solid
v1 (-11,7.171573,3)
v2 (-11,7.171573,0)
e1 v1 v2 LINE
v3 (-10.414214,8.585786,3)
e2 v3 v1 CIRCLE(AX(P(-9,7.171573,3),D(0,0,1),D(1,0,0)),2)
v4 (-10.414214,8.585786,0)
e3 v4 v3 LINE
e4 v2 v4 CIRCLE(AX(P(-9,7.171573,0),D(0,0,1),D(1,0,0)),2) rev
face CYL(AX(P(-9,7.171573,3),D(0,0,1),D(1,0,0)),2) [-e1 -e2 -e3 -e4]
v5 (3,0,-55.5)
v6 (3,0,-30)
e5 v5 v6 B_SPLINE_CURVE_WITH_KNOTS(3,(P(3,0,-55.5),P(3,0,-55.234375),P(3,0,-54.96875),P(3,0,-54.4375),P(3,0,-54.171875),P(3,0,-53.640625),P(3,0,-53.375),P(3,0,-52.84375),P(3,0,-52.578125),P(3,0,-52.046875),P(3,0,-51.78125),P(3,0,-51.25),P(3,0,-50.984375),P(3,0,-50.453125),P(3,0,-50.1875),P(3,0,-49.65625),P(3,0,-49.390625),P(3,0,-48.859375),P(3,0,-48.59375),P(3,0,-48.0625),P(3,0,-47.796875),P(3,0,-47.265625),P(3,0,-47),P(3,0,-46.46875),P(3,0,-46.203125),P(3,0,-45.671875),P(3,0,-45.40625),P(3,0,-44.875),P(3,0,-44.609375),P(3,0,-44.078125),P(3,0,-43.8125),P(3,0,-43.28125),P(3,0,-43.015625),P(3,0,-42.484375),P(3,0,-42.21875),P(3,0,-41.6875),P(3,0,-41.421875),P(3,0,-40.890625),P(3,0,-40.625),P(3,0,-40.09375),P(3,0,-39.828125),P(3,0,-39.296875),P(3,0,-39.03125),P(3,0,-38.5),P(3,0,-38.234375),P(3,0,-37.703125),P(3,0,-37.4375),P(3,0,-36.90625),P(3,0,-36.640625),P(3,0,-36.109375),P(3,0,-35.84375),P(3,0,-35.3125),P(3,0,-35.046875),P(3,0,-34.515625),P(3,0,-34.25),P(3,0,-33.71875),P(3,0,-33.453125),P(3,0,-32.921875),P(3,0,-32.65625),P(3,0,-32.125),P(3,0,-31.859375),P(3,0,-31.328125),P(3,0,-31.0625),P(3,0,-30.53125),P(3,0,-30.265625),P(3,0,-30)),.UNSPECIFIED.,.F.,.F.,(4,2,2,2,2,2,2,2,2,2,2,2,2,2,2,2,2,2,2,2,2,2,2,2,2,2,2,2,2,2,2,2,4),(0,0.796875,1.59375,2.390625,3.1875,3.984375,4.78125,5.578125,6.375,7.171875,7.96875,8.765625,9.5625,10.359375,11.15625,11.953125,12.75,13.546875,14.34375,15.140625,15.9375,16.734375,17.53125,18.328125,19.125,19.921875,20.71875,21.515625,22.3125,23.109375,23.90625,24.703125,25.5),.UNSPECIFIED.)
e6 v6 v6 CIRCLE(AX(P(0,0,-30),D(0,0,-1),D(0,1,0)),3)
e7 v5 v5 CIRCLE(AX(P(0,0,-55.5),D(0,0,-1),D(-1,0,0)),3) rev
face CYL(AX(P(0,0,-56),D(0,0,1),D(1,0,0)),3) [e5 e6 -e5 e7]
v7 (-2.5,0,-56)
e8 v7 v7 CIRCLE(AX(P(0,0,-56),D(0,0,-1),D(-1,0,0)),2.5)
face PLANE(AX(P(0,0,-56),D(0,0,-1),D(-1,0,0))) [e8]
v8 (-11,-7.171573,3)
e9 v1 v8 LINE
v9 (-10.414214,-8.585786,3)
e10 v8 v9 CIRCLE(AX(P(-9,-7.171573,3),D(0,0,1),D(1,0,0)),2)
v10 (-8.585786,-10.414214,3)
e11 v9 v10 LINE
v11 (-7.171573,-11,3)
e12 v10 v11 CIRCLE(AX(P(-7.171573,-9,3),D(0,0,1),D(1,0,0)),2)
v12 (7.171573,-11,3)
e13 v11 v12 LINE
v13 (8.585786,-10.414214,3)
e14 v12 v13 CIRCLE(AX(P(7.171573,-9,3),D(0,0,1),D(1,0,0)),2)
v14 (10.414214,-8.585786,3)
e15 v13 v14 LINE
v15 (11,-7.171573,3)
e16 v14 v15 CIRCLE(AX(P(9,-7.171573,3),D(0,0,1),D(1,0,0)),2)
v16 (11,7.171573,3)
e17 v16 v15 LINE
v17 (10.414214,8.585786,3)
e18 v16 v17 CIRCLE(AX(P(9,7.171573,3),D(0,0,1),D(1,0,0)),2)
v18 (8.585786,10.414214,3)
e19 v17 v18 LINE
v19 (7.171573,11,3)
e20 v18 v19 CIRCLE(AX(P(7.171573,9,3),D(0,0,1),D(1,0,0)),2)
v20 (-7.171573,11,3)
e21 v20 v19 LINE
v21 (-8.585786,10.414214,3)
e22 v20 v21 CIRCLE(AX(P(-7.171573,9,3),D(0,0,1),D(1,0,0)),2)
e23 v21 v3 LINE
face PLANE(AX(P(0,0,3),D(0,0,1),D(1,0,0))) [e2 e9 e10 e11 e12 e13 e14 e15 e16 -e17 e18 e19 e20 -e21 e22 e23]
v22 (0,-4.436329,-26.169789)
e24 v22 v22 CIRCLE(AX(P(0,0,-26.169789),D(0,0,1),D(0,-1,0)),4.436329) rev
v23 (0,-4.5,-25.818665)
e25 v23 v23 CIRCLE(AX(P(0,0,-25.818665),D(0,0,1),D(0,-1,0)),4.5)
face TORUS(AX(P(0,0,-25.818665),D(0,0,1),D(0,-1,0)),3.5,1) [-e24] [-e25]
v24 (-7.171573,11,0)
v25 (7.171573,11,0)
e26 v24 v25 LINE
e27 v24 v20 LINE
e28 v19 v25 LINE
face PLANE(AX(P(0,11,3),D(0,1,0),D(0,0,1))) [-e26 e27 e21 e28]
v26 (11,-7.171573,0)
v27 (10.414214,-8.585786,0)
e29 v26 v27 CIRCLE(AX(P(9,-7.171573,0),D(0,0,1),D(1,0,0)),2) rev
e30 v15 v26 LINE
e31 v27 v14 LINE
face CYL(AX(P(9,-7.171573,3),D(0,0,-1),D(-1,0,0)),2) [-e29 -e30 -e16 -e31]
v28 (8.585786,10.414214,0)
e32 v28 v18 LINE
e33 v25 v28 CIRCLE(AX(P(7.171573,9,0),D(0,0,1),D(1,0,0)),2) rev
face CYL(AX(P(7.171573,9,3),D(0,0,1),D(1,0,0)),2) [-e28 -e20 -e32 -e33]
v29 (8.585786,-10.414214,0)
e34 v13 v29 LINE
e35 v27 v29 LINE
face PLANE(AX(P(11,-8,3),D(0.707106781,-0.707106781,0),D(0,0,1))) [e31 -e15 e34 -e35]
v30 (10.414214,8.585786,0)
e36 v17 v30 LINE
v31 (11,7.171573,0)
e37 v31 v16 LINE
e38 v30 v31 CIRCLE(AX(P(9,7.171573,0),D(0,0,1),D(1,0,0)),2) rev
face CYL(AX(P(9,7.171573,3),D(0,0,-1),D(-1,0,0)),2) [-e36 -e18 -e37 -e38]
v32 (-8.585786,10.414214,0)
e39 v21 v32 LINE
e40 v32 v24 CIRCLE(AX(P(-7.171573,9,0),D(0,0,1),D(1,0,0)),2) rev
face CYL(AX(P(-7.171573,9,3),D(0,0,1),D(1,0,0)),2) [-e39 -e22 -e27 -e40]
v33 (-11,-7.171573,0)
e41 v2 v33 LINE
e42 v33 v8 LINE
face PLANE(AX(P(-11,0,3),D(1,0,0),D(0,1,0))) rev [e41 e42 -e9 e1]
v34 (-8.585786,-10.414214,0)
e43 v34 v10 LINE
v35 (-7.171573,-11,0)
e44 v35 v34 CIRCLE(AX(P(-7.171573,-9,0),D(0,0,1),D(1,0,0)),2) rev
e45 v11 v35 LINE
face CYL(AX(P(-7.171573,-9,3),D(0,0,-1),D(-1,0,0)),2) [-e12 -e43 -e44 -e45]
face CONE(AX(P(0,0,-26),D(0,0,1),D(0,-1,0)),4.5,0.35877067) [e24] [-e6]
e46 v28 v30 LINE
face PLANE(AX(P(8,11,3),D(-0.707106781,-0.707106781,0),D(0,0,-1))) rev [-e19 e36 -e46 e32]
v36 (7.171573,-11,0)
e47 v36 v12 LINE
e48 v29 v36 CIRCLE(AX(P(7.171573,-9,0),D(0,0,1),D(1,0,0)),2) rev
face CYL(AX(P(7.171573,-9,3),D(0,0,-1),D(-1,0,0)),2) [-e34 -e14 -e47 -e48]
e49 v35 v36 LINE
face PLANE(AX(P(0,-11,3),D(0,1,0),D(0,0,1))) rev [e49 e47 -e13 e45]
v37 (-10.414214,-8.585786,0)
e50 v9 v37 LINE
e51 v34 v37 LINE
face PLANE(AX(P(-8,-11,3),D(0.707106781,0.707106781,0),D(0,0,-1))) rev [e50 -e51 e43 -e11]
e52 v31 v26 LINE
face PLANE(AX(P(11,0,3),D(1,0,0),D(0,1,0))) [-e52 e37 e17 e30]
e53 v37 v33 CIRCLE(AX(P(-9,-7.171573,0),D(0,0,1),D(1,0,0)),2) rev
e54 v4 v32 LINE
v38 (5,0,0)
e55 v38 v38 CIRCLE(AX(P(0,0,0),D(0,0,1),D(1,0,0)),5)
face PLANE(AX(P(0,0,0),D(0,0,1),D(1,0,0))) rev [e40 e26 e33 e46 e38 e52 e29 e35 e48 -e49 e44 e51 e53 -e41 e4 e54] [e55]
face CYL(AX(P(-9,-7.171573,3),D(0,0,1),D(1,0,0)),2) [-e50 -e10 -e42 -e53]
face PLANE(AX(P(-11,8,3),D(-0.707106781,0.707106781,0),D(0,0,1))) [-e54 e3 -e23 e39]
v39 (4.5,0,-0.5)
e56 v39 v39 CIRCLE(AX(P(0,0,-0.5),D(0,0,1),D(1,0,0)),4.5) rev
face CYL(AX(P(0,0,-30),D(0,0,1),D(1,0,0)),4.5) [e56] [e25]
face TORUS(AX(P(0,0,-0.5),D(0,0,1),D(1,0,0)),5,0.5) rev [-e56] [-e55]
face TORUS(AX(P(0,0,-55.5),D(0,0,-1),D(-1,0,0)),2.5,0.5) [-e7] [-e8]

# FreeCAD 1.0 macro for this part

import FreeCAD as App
import Part
import Sketcher


def edges_at(feature, points):
    """Names of the edges that pass closest to the given points."""
    edges = feature.Shape.Edges
    near = lambda p: min(range(len(edges)), key=lambda i: edges[i].distToShape(Part.Vertex(*p))[0])
    return sorted({f"Edge{near(p) + 1}" for p in points})

doc = App.newDocument("Part")
params = doc.addObject("Spreadsheet::Sheet", "Params")
for row, (alias, value) in enumerate([
    ("sketch1_width", "22 mm"),
    ("pad1_length", "3 mm"),
    ("sketch2_diameter", "9 mm"),
    ("pad2_length", "30 mm"),
    ("sketch3_diameter", "6 mm"),
    ("pad3_length", "26 mm"),
    ("sketch4_height", "4 mm"),
    ("sketch4_width", "1.5 mm"),
    ("groove_angle", "360 deg"),
    ("fillet_radius", "0.5 mm"),
    ("fillet2_radius", "0.5 mm"),
    ("fillet3_radius", "1 mm"),
    ("chamfer_size", "3 mm"),
    ("fillet4_radius", "2 mm"),
], start=1):
    params.set(f"A{row}", alias)
    params.set(f"B{row}", "=" + value)
    params.setAlias(f"B{row}", alias)

body = doc.addObject("PartDesign::Body", "Body")

sketch1 = body.newObject("Sketcher::SketchObject", "Sketch")
sketch1.AttachmentSupport = (doc.getObject("XY_Plane"), [""])
sketch1.MapMode = "FlatFace"
sketch1.addGeometry([
    Part.LineSegment(App.Vector(-11, 11, 0), App.Vector(-11, -11, 0)),
    Part.LineSegment(App.Vector(-11, -11, 0), App.Vector(11, -11, 0)),
    Part.LineSegment(App.Vector(11, -11, 0), App.Vector(11, 11, 0)),
    Part.LineSegment(App.Vector(11, 11, 0), App.Vector(-11, 11, 0)),
], False)
sketch1.addConstraint([
    Sketcher.Constraint("Coincident", 0, 2, 1, 1),
    Sketcher.Constraint("Coincident", 1, 2, 2, 1),
    Sketcher.Constraint("Coincident", 2, 2, 3, 1),
    Sketcher.Constraint("Coincident", 3, 2, 0, 1),
    Sketcher.Constraint("Vertical", 0),
    Sketcher.Constraint("Horizontal", 1),
    Sketcher.Constraint("Vertical", 2),
    Sketcher.Constraint("Horizontal", 3),
    Sketcher.Constraint("Symmetric", 0, 2, 2, 2, -1, 1),
    Sketcher.Constraint("Equal", 3, 0),
    Sketcher.Constraint("DistanceX", 1, 1, 1, 2, 22.0),
])
sketch1.setExpression("Constraints[10]", "Params.sketch1_width")
pad1 = body.newObject("PartDesign::Pad", "Pad")
pad1.Profile = sketch1
pad1.setExpression("Length", "Params.pad1_length")

sketch2 = body.newObject("Sketcher::SketchObject", "Sketch001")
sketch2.AttachmentSupport = (doc.getObject("XY_Plane"), [""])
sketch2.MapMode = "FlatFace"
sketch2.addGeometry(Part.Circle(App.Vector(0, 0, 0), App.Vector(0, 0, 1), 4.5), False)
sketch2.addConstraint([
    Sketcher.Constraint("Coincident", 0, 3, -1, 1),
    Sketcher.Constraint("Diameter", 0, 9.0),
])
sketch2.setExpression("Constraints[1]", "Params.sketch2_diameter")
pad2 = body.newObject("PartDesign::Pad", "Pad001")
pad2.Profile = sketch2
pad2.setExpression("Length", "Params.pad2_length")
pad2.Reversed = True

sketch3 = body.newObject("Sketcher::SketchObject", "Sketch002")
sketch3.AttachmentSupport = (doc.getObject("XY_Plane"), [""])
sketch3.MapMode = "FlatFace"
sketch3.AttachmentOffset = App.Placement(App.Vector(0, 0, -30), App.Rotation())
sketch3.addGeometry(Part.Circle(App.Vector(0, 0, 0), App.Vector(0, 0, 1), 3), False)
sketch3.addConstraint([
    Sketcher.Constraint("Coincident", 0, 3, -1, 1),
    Sketcher.Constraint("Diameter", 0, 6.0),
])
sketch3.setExpression("Constraints[1]", "Params.sketch3_diameter")
pad3 = body.newObject("PartDesign::Pad", "Pad002")
pad3.Profile = sketch3
pad3.setExpression("Length", "Params.pad3_length")
pad3.Reversed = True

sketch4 = body.newObject("Sketcher::SketchObject", "Sketch003")
sketch4.AttachmentSupport = (doc.getObject("YZ_Plane"), [""])
sketch4.MapMode = "FlatFace"
sketch4.addGeometry([
    Part.LineSegment(App.Vector(4.5, -26, 0), App.Vector(3, -30, 0)),
    Part.LineSegment(App.Vector(3, -30, 0), App.Vector(4.5, -30, 0)),
    Part.LineSegment(App.Vector(4.5, -30, 0), App.Vector(4.5, -26, 0)),
], False)
sketch4.addConstraint([
    Sketcher.Constraint("Coincident", 0, 2, 1, 1),
    Sketcher.Constraint("Coincident", 1, 2, 2, 1),
    Sketcher.Constraint("Coincident", 2, 2, 0, 1),
    Sketcher.Constraint("Horizontal", 1),
    Sketcher.Constraint("Vertical", 2),
    Sketcher.Constraint("DistanceY", 2, 1, 2, 2, 4.0),
    Sketcher.Constraint("DistanceX", 1, 1, 1, 2, 1.5),
    Sketcher.Constraint("DistanceX", -1, 1, 0, 2, 3.0),
    Sketcher.Constraint("DistanceY", 0, 2, -1, 1, 30.0),
])
sketch4.setExpression("Constraints[5]", "Params.sketch4_height")
sketch4.setExpression("Constraints[6]", "Params.sketch4_width")
groove = body.newObject("PartDesign::Groove", "Groove")
groove.Profile = sketch4
groove.ReferenceAxis = (sketch4, ["V_Axis"])
groove.setExpression("Angle", "Params.groove_angle")
doc.recompute()

fillet = body.newObject("PartDesign::Fillet", "Fillet")
fillet.Base = (groove, edges_at(groove, [(-4.5, 0, 0)]))
fillet.setExpression("Radius", "Params.fillet_radius")
doc.recompute()

fillet2 = body.newObject("PartDesign::Fillet", "Fillet001")
fillet2.Base = (fillet, edges_at(fillet, [(-3, 0, -56)]))
fillet2.setExpression("Radius", "Params.fillet2_radius")
doc.recompute()

fillet3 = body.newObject("PartDesign::Fillet", "Fillet002")
fillet3.Base = (fillet2, edges_at(fillet2, [(-4.5, 0, -26)]))
fillet3.setExpression("Radius", "Params.fillet3_radius")
doc.recompute()

chamfer = body.newObject("PartDesign::Chamfer", "Chamfer")
chamfer.Base = (fillet3, edges_at(fillet3, [
    (11, -11, 1.5),
    (-11, -11, 1.5),
    (-11, 11, 1.5),
    (11, 11, 1.5),
]))
chamfer.setExpression("Size", "Params.chamfer_size")
doc.recompute()

fillet4 = body.newObject("PartDesign::Fillet", "Fillet003")
fillet4.Base = (chamfer, edges_at(chamfer, [
    (-8, 11, 1.5),
    (8, 11, 1.5),
    (11, -8, 1.5),
    (11, 8, 1.5),
    (-11, -8, 1.5),
    (-11, 8, 1.5),
    (8, -11, 1.5),
    (-8, -11, 1.5),
]))
fillet4.setExpression("Radius", "Params.fillet4_radius")

doc.recompute()
